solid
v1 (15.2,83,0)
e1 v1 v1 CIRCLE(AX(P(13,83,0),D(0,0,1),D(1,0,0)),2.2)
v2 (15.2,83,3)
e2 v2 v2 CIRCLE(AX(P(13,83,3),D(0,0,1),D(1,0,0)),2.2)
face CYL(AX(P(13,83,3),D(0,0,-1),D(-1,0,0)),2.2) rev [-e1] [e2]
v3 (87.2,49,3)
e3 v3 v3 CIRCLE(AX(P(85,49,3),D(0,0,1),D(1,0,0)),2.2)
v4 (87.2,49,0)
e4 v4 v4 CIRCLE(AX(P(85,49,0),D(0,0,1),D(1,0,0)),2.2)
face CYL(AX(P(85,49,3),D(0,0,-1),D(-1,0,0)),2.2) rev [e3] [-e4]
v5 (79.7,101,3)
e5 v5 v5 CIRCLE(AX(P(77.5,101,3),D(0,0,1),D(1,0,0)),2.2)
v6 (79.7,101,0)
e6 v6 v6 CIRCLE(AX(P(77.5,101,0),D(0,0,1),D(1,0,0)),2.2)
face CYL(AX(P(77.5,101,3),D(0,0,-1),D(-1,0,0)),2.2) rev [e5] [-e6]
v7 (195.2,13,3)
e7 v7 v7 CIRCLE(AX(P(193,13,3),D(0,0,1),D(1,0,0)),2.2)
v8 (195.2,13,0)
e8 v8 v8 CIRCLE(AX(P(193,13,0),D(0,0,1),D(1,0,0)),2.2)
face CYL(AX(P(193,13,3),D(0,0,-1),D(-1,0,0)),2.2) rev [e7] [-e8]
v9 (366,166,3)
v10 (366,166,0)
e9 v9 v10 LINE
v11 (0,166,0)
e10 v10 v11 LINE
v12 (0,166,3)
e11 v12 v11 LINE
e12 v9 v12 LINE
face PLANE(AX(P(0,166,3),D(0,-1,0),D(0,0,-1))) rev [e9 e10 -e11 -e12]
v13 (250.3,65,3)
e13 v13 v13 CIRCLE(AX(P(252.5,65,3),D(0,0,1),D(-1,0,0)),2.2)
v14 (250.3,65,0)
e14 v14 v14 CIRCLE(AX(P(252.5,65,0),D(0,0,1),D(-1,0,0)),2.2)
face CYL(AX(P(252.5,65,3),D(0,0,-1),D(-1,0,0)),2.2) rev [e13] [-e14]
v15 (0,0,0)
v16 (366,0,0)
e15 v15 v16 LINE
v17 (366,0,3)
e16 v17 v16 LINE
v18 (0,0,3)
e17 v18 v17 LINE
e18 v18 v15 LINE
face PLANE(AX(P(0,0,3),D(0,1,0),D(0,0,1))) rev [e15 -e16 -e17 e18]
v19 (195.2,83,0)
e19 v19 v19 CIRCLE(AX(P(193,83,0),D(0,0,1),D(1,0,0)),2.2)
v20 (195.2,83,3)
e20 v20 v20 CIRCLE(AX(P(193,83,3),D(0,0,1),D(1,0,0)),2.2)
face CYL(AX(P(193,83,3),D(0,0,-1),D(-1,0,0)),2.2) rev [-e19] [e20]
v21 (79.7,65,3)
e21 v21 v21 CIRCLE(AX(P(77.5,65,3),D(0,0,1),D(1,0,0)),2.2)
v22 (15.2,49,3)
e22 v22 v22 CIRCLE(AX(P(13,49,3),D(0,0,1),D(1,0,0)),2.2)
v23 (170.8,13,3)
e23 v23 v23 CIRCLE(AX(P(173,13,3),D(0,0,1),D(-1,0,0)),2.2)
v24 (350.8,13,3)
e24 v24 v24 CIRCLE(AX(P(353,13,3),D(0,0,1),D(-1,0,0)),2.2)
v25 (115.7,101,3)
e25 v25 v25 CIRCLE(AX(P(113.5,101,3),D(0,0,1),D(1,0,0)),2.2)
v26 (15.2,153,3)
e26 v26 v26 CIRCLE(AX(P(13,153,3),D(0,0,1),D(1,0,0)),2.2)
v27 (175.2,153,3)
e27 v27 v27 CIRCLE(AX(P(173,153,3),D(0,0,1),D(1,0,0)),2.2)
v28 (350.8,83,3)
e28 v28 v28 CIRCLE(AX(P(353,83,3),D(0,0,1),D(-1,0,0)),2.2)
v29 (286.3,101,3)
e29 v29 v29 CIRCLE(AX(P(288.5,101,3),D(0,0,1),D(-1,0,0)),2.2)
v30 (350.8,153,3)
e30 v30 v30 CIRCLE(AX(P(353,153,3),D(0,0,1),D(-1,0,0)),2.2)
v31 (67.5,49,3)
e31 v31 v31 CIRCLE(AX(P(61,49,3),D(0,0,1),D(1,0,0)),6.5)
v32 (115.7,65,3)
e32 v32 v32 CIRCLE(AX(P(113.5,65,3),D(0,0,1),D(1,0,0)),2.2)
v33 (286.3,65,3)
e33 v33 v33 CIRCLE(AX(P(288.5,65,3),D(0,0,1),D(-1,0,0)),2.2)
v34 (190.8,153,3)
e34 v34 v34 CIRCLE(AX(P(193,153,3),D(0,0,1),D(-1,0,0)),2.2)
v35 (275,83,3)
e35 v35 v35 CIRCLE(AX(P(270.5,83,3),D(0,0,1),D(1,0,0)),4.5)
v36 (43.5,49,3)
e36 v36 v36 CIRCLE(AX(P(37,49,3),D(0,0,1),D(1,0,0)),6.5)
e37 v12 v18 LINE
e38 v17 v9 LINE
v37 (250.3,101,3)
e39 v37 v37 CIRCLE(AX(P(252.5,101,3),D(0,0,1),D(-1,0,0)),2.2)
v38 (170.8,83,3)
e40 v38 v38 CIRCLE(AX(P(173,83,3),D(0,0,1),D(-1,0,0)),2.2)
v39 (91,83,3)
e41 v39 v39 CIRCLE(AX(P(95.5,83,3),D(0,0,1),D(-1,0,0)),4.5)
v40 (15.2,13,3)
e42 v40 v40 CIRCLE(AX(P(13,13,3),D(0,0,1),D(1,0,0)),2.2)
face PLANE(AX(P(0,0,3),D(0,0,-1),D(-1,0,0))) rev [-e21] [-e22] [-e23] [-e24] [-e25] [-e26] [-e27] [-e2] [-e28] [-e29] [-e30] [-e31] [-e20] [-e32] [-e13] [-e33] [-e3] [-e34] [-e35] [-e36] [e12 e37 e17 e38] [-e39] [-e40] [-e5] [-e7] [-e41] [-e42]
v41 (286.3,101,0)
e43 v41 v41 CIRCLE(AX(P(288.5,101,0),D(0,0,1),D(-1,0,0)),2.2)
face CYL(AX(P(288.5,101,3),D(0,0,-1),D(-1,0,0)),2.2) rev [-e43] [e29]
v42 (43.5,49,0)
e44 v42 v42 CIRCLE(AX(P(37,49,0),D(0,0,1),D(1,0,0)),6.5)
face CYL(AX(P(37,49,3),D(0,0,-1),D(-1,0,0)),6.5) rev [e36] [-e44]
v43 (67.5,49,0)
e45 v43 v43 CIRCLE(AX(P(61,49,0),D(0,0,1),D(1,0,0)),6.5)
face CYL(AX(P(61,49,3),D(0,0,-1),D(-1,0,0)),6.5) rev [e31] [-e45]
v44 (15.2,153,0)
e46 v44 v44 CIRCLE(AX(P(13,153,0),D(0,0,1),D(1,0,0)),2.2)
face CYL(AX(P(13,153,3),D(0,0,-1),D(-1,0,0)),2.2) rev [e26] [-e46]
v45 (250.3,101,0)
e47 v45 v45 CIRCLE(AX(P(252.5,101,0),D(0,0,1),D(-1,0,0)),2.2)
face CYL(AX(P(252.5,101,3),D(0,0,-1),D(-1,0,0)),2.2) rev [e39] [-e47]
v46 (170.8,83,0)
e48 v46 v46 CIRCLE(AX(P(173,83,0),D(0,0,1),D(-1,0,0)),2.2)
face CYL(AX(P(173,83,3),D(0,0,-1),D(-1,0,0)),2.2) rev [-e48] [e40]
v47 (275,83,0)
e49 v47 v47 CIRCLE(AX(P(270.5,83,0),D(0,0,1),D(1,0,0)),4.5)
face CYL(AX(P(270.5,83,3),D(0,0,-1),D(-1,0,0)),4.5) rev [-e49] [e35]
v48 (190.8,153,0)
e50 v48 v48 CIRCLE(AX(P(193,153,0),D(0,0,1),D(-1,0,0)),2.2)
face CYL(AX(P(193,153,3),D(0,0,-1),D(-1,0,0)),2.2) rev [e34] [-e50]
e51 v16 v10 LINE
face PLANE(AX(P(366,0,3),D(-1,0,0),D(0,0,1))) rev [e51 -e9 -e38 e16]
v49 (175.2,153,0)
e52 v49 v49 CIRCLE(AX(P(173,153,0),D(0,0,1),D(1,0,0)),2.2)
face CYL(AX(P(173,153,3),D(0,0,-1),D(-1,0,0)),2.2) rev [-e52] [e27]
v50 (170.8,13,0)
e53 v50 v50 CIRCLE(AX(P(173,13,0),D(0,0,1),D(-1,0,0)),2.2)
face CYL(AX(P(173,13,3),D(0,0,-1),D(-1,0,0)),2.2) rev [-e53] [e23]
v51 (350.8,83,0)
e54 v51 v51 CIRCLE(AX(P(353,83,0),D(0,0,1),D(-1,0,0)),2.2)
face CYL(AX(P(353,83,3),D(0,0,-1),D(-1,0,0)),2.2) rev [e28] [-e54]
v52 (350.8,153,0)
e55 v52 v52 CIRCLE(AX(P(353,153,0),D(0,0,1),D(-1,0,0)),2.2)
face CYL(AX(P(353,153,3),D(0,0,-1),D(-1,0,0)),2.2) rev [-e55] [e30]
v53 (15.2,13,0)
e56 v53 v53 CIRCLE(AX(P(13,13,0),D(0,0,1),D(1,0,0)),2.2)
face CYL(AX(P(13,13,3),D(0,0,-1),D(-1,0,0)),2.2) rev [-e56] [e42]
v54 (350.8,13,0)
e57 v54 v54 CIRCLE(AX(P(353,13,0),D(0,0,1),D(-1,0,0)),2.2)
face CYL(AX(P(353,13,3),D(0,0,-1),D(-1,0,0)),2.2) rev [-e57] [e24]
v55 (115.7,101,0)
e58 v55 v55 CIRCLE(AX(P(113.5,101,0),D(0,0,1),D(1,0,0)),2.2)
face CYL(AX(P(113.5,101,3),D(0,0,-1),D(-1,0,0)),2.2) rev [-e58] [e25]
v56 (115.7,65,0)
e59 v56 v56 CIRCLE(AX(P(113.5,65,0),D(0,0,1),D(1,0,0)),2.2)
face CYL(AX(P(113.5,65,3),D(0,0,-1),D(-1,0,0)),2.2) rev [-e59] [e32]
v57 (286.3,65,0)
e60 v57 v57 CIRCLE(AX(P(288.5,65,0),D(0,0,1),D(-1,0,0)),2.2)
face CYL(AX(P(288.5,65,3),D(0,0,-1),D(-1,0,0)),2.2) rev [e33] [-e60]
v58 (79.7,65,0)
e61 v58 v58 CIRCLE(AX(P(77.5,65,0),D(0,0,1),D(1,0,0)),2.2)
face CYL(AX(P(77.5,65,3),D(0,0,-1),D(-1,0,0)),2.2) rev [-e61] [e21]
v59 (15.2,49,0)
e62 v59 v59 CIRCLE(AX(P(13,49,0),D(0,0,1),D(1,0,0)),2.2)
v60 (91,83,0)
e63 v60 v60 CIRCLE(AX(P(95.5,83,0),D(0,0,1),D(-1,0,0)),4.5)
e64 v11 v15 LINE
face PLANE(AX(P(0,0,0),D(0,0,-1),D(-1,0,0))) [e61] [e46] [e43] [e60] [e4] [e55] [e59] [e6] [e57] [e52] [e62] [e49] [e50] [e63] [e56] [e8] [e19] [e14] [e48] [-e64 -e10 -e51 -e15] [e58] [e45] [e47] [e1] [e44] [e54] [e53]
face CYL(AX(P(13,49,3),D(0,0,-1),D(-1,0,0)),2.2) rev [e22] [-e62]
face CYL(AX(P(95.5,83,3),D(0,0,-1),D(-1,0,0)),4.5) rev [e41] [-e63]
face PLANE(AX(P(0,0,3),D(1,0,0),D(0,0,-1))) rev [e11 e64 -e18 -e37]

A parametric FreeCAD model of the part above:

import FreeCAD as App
import Part
import Sketcher

V = App.Vector
Q = App.Units.Quantity

doc = App.newDocument("Part")
params = doc.addObject("Spreadsheet::Sheet", "Params")
for row, (alias, value) in enumerate([
    ("sketch1_diameter", "13 mm"),
    ("sketch1_diameter2", "9 mm"),
    ("sketch1_diameter3", "4.4 mm"),
    ("sketch1_width", "366 mm"),
    ("sketch1_height", "166 mm"),
    ("pad1_length", "3 mm"),
], start=1):
    params.set(f"A{row}", alias)
    params.set(f"B{row}", "=" + value)
    params.setAlias(f"B{row}", alias)

body = doc.addObject("PartDesign::Body", "Body")

# Sketch on XY plane
sketch1 = doc.addObject("Sketcher::SketchObject", "Sketch")
body.addObject(sketch1)
sketch1.AttachmentSupport = (doc.XY_Plane, [""])
sketch1.MapMode = "FlatFace"
sketch1.addGeometry([
    Part.LineSegment(V(0, 166, 0), V(0, 0, 0)),  # 0
    Part.LineSegment(V(0, 0, 0), V(366, 0, 0)),  # 1
    Part.LineSegment(V(366, 0, 0), V(366, 166, 0)),  # 2
    Part.LineSegment(V(366, 166, 0), V(0, 166, 0)),  # 3
    Part.Circle(V(13, 13, 0), V(0, 0, 1), 2.2),  # 4
    Part.Circle(V(173, 13, 0), V(0, 0, 1), 2.2),  # 5
    Part.Circle(V(13, 49, 0), V(0, 0, 1), 2.2),  # 6
    Part.Circle(V(37, 49, 0), V(0, 0, 1), 6.5),  # 7
    Part.Circle(V(61, 49, 0), V(0, 0, 1), 6.5),  # 8
    Part.Circle(V(85, 49, 0), V(0, 0, 1), 2.2),  # 9
    Part.Circle(V(77.5, 65, 0), V(0, 0, 1), 2.2),  # 10
    Part.Circle(V(113.5, 65, 0), V(0, 0, 1), 2.2),  # 11
    Part.Circle(V(193, 13, 0), V(0, 0, 1), 2.2),  # 12
    Part.Circle(V(353, 13, 0), V(0, 0, 1), 2.2),  # 13
    Part.Circle(V(252.5, 65, 0), V(0, 0, 1), 2.2),  # 14
    Part.Circle(V(288.5, 65, 0), V(0, 0, 1), 2.2),  # 15
    Part.Circle(V(13, 83, 0), V(0, 0, 1), 2.2),  # 16
    Part.Circle(V(95.5, 83, 0), V(0, 0, 1), 4.5),  # 17
    Part.Circle(V(77.5, 101, 0), V(0, 0, 1), 2.2),  # 18
    Part.Circle(V(113.5, 101, 0), V(0, 0, 1), 2.2),  # 19
    Part.Circle(V(173, 83, 0), V(0, 0, 1), 2.2),  # 20
    Part.Circle(V(13, 153, 0), V(0, 0, 1), 2.2),  # 21
    Part.Circle(V(173, 153, 0), V(0, 0, 1), 2.2),  # 22
    Part.Circle(V(193, 83, 0), V(0, 0, 1), 2.2),  # 23
    Part.Circle(V(252.5, 101, 0), V(0, 0, 1), 2.2),  # 24
    Part.Circle(V(270.5, 83, 0), V(0, 0, 1), 4.5),  # 25
    Part.Circle(V(288.5, 101, 0), V(0, 0, 1), 2.2),  # 26
    Part.Circle(V(353, 83, 0), V(0, 0, 1), 2.2),  # 27
    Part.Circle(V(193, 153, 0), V(0, 0, 1), 2.2),  # 28
    Part.Circle(V(353, 153, 0), V(0, 0, 1), 2.2),  # 29
], False)
sketch1.addConstraint([
    Sketcher.Constraint("Coincident", 0, 2, 1, 1),
    Sketcher.Constraint("Coincident", 1, 2, 2, 1),
    Sketcher.Constraint("Coincident", 2, 2, 3, 1),
    Sketcher.Constraint("Coincident", 3, 2, 0, 1),
    Sketcher.Constraint("Vertical", 0),
    Sketcher.Constraint("Horizontal", 1),
    Sketcher.Constraint("Vertical", 2),
    Sketcher.Constraint("Horizontal", 3),
    Sketcher.Constraint("Coincident", 0, 2, -1, 1),
    Sketcher.Constraint("Equal", 4, 5),
    Sketcher.Constraint("Equal", 5, 6),
    Sketcher.Constraint("Equal", 7, 8),
    Sketcher.Constraint("Equal", 6, 9),
    Sketcher.Constraint("Equal", 9, 10),
    Sketcher.Constraint("Equal", 10, 11),
    Sketcher.Constraint("Equal", 11, 12),
    Sketcher.Constraint("Equal", 12, 13),
    Sketcher.Constraint("Equal", 13, 14),
    Sketcher.Constraint("Equal", 14, 15),
    Sketcher.Constraint("Equal", 15, 16),
    Sketcher.Constraint("Equal", 16, 18),
    Sketcher.Constraint("Equal", 18, 19),
    Sketcher.Constraint("Equal", 19, 20),
    Sketcher.Constraint("Equal", 20, 21),
    Sketcher.Constraint("Equal", 21, 22),
    Sketcher.Constraint("Equal", 22, 23),
    Sketcher.Constraint("Equal", 23, 24),
    Sketcher.Constraint("Equal", 17, 25),
    Sketcher.Constraint("Equal", 24, 26),
    Sketcher.Constraint("Equal", 26, 27),
    Sketcher.Constraint("Equal", 27, 28),
    Sketcher.Constraint("Equal", 28, 29),
    Sketcher.Constraint("Horizontal", 4, 3, 5, 3),
    Sketcher.Constraint("Horizontal", 6, 3, 7, 3),
    Sketcher.Constraint("Horizontal", 7, 3, 8, 3),
    Sketcher.Constraint("Horizontal", 8, 3, 9, 3),
    Sketcher.Constraint("Horizontal", 10, 3, 11, 3),
    Sketcher.Constraint("Horizontal", 5, 3, 12, 3),
    Sketcher.Constraint("Horizontal", 12, 3, 13, 3),
    Sketcher.Constraint("Horizontal", 11, 3, 14, 3),
    Sketcher.Constraint("Horizontal", 14, 3, 15, 3),
    Sketcher.Constraint("Horizontal", 16, 3, 17, 3),
    Sketcher.Constraint("Horizontal", 18, 3, 19, 3),
    Sketcher.Constraint("Horizontal", 17, 3, 20, 3),
    Sketcher.Constraint("Horizontal", 21, 3, 22, 3),
    Sketcher.Constraint("Horizontal", 20, 3, 23, 3),
    Sketcher.Constraint("Horizontal", 19, 3, 24, 3),
    Sketcher.Constraint("Horizontal", 23, 3, 25, 3),
    Sketcher.Constraint("Horizontal", 24, 3, 26, 3),
    Sketcher.Constraint("Horizontal", 25, 3, 27, 3),
    Sketcher.Constraint("Horizontal", 22, 3, 28, 3),
    Sketcher.Constraint("Horizontal", 28, 3, 29, 3),
    Sketcher.Constraint("Vertical", 4, 3, 6, 3),
    Sketcher.Constraint("Vertical", 6, 3, 16, 3),
    Sketcher.Constraint("Vertical", 10, 3, 18, 3),
    Sketcher.Constraint("Vertical", 11, 3, 19, 3),
    Sketcher.Constraint("Vertical", 5, 3, 20, 3),
    Sketcher.Constraint("Vertical", 16, 3, 21, 3),
    Sketcher.Constraint("Vertical", 20, 3, 22, 3),
    Sketcher.Constraint("Vertical", 12, 3, 23, 3),
    Sketcher.Constraint("Vertical", 14, 3, 24, 3),
    Sketcher.Constraint("Vertical", 15, 3, 26, 3),
    Sketcher.Constraint("Vertical", 13, 3, 27, 3),
    Sketcher.Constraint("Vertical", 23, 3, 28, 3),
    Sketcher.Constraint("Vertical", 27, 3, 29, 3),
    Sketcher.Constraint("Diameter", 7, Q("13 mm")),
    Sketcher.Constraint("Diameter", 17, Q("9 mm")),
    Sketcher.Constraint("Diameter", 4, Q("4.4 mm")),
    Sketcher.Constraint("DistanceX", 1, 1, 1, 2, Q("366 mm")),
    Sketcher.Constraint("DistanceY", 0, 2, 0, 1, Q("166 mm")),
    Sketcher.Constraint("DistanceX", -1, 1, 4, 3, Q("13 mm")),
    Sketcher.Constraint("DistanceY", -1, 1, 4, 3, Q("13 mm")),
    Sketcher.Constraint("DistanceX", -1, 1, 5, 3, Q("173 mm")),
    Sketcher.Constraint("DistanceY", -1, 1, 6, 3, Q("49 mm")),
    Sketcher.Constraint("DistanceX", -1, 1, 7, 3, Q("37 mm")),
    Sketcher.Constraint("DistanceX", -1, 1, 8, 3, Q("61 mm")),
    Sketcher.Constraint("DistanceX", -1, 1, 9, 3, Q("85 mm")),
    Sketcher.Constraint("DistanceY", -1, 1, 10, 3, Q("65 mm")),
    Sketcher.Constraint("DistanceX", -1, 1, 12, 3, Q("193 mm")),
    Sketcher.Constraint("DistanceX", -1, 1, 13, 3, Q("353 mm")),
    Sketcher.Constraint("DistanceY", -1, 1, 16, 3, Q("83 mm")),
    Sketcher.Constraint("DistanceY", -1, 1, 18, 3, Q("101 mm")),
    Sketcher.Constraint("DistanceY", -1, 1, 21, 3, Q("153 mm")),
    Sketcher.Constraint("DistanceX", 10, 3, 11, 3, Q("36 mm")),
    Sketcher.Constraint("DistanceX", 11, 3, 14, 3, Q("139 mm")),
    Sketcher.Constraint("DistanceX", 14, 3, 15, 3, Q("36 mm")),
    Sketcher.Constraint("DistanceX", 10, 3, 17, 3, Q("18 mm")),
    Sketcher.Constraint("DistanceX", 14, 3, 25, 3, Q("18 mm")),
    Sketcher.Constraint("DistanceX", -1, 1, 10, 3, Q("77.5 mm")),
])
sketch1.setExpression("Constraints[65]", "Params.sketch1_diameter")
sketch1.setExpression("Constraints[66]", "Params.sketch1_diameter2")
sketch1.setExpression("Constraints[67]", "Params.sketch1_diameter3")
sketch1.setExpression("Constraints[68]", "Params.sketch1_width")
sketch1.setExpression("Constraints[69]", "Params.sketch1_height")
pad1 = doc.addObject("PartDesign::Pad", "Pad")
body.addObject(pad1)
pad1.Profile = sketch1
pad1.setExpression("Length", "Params.pad1_length")

doc.recompute()
